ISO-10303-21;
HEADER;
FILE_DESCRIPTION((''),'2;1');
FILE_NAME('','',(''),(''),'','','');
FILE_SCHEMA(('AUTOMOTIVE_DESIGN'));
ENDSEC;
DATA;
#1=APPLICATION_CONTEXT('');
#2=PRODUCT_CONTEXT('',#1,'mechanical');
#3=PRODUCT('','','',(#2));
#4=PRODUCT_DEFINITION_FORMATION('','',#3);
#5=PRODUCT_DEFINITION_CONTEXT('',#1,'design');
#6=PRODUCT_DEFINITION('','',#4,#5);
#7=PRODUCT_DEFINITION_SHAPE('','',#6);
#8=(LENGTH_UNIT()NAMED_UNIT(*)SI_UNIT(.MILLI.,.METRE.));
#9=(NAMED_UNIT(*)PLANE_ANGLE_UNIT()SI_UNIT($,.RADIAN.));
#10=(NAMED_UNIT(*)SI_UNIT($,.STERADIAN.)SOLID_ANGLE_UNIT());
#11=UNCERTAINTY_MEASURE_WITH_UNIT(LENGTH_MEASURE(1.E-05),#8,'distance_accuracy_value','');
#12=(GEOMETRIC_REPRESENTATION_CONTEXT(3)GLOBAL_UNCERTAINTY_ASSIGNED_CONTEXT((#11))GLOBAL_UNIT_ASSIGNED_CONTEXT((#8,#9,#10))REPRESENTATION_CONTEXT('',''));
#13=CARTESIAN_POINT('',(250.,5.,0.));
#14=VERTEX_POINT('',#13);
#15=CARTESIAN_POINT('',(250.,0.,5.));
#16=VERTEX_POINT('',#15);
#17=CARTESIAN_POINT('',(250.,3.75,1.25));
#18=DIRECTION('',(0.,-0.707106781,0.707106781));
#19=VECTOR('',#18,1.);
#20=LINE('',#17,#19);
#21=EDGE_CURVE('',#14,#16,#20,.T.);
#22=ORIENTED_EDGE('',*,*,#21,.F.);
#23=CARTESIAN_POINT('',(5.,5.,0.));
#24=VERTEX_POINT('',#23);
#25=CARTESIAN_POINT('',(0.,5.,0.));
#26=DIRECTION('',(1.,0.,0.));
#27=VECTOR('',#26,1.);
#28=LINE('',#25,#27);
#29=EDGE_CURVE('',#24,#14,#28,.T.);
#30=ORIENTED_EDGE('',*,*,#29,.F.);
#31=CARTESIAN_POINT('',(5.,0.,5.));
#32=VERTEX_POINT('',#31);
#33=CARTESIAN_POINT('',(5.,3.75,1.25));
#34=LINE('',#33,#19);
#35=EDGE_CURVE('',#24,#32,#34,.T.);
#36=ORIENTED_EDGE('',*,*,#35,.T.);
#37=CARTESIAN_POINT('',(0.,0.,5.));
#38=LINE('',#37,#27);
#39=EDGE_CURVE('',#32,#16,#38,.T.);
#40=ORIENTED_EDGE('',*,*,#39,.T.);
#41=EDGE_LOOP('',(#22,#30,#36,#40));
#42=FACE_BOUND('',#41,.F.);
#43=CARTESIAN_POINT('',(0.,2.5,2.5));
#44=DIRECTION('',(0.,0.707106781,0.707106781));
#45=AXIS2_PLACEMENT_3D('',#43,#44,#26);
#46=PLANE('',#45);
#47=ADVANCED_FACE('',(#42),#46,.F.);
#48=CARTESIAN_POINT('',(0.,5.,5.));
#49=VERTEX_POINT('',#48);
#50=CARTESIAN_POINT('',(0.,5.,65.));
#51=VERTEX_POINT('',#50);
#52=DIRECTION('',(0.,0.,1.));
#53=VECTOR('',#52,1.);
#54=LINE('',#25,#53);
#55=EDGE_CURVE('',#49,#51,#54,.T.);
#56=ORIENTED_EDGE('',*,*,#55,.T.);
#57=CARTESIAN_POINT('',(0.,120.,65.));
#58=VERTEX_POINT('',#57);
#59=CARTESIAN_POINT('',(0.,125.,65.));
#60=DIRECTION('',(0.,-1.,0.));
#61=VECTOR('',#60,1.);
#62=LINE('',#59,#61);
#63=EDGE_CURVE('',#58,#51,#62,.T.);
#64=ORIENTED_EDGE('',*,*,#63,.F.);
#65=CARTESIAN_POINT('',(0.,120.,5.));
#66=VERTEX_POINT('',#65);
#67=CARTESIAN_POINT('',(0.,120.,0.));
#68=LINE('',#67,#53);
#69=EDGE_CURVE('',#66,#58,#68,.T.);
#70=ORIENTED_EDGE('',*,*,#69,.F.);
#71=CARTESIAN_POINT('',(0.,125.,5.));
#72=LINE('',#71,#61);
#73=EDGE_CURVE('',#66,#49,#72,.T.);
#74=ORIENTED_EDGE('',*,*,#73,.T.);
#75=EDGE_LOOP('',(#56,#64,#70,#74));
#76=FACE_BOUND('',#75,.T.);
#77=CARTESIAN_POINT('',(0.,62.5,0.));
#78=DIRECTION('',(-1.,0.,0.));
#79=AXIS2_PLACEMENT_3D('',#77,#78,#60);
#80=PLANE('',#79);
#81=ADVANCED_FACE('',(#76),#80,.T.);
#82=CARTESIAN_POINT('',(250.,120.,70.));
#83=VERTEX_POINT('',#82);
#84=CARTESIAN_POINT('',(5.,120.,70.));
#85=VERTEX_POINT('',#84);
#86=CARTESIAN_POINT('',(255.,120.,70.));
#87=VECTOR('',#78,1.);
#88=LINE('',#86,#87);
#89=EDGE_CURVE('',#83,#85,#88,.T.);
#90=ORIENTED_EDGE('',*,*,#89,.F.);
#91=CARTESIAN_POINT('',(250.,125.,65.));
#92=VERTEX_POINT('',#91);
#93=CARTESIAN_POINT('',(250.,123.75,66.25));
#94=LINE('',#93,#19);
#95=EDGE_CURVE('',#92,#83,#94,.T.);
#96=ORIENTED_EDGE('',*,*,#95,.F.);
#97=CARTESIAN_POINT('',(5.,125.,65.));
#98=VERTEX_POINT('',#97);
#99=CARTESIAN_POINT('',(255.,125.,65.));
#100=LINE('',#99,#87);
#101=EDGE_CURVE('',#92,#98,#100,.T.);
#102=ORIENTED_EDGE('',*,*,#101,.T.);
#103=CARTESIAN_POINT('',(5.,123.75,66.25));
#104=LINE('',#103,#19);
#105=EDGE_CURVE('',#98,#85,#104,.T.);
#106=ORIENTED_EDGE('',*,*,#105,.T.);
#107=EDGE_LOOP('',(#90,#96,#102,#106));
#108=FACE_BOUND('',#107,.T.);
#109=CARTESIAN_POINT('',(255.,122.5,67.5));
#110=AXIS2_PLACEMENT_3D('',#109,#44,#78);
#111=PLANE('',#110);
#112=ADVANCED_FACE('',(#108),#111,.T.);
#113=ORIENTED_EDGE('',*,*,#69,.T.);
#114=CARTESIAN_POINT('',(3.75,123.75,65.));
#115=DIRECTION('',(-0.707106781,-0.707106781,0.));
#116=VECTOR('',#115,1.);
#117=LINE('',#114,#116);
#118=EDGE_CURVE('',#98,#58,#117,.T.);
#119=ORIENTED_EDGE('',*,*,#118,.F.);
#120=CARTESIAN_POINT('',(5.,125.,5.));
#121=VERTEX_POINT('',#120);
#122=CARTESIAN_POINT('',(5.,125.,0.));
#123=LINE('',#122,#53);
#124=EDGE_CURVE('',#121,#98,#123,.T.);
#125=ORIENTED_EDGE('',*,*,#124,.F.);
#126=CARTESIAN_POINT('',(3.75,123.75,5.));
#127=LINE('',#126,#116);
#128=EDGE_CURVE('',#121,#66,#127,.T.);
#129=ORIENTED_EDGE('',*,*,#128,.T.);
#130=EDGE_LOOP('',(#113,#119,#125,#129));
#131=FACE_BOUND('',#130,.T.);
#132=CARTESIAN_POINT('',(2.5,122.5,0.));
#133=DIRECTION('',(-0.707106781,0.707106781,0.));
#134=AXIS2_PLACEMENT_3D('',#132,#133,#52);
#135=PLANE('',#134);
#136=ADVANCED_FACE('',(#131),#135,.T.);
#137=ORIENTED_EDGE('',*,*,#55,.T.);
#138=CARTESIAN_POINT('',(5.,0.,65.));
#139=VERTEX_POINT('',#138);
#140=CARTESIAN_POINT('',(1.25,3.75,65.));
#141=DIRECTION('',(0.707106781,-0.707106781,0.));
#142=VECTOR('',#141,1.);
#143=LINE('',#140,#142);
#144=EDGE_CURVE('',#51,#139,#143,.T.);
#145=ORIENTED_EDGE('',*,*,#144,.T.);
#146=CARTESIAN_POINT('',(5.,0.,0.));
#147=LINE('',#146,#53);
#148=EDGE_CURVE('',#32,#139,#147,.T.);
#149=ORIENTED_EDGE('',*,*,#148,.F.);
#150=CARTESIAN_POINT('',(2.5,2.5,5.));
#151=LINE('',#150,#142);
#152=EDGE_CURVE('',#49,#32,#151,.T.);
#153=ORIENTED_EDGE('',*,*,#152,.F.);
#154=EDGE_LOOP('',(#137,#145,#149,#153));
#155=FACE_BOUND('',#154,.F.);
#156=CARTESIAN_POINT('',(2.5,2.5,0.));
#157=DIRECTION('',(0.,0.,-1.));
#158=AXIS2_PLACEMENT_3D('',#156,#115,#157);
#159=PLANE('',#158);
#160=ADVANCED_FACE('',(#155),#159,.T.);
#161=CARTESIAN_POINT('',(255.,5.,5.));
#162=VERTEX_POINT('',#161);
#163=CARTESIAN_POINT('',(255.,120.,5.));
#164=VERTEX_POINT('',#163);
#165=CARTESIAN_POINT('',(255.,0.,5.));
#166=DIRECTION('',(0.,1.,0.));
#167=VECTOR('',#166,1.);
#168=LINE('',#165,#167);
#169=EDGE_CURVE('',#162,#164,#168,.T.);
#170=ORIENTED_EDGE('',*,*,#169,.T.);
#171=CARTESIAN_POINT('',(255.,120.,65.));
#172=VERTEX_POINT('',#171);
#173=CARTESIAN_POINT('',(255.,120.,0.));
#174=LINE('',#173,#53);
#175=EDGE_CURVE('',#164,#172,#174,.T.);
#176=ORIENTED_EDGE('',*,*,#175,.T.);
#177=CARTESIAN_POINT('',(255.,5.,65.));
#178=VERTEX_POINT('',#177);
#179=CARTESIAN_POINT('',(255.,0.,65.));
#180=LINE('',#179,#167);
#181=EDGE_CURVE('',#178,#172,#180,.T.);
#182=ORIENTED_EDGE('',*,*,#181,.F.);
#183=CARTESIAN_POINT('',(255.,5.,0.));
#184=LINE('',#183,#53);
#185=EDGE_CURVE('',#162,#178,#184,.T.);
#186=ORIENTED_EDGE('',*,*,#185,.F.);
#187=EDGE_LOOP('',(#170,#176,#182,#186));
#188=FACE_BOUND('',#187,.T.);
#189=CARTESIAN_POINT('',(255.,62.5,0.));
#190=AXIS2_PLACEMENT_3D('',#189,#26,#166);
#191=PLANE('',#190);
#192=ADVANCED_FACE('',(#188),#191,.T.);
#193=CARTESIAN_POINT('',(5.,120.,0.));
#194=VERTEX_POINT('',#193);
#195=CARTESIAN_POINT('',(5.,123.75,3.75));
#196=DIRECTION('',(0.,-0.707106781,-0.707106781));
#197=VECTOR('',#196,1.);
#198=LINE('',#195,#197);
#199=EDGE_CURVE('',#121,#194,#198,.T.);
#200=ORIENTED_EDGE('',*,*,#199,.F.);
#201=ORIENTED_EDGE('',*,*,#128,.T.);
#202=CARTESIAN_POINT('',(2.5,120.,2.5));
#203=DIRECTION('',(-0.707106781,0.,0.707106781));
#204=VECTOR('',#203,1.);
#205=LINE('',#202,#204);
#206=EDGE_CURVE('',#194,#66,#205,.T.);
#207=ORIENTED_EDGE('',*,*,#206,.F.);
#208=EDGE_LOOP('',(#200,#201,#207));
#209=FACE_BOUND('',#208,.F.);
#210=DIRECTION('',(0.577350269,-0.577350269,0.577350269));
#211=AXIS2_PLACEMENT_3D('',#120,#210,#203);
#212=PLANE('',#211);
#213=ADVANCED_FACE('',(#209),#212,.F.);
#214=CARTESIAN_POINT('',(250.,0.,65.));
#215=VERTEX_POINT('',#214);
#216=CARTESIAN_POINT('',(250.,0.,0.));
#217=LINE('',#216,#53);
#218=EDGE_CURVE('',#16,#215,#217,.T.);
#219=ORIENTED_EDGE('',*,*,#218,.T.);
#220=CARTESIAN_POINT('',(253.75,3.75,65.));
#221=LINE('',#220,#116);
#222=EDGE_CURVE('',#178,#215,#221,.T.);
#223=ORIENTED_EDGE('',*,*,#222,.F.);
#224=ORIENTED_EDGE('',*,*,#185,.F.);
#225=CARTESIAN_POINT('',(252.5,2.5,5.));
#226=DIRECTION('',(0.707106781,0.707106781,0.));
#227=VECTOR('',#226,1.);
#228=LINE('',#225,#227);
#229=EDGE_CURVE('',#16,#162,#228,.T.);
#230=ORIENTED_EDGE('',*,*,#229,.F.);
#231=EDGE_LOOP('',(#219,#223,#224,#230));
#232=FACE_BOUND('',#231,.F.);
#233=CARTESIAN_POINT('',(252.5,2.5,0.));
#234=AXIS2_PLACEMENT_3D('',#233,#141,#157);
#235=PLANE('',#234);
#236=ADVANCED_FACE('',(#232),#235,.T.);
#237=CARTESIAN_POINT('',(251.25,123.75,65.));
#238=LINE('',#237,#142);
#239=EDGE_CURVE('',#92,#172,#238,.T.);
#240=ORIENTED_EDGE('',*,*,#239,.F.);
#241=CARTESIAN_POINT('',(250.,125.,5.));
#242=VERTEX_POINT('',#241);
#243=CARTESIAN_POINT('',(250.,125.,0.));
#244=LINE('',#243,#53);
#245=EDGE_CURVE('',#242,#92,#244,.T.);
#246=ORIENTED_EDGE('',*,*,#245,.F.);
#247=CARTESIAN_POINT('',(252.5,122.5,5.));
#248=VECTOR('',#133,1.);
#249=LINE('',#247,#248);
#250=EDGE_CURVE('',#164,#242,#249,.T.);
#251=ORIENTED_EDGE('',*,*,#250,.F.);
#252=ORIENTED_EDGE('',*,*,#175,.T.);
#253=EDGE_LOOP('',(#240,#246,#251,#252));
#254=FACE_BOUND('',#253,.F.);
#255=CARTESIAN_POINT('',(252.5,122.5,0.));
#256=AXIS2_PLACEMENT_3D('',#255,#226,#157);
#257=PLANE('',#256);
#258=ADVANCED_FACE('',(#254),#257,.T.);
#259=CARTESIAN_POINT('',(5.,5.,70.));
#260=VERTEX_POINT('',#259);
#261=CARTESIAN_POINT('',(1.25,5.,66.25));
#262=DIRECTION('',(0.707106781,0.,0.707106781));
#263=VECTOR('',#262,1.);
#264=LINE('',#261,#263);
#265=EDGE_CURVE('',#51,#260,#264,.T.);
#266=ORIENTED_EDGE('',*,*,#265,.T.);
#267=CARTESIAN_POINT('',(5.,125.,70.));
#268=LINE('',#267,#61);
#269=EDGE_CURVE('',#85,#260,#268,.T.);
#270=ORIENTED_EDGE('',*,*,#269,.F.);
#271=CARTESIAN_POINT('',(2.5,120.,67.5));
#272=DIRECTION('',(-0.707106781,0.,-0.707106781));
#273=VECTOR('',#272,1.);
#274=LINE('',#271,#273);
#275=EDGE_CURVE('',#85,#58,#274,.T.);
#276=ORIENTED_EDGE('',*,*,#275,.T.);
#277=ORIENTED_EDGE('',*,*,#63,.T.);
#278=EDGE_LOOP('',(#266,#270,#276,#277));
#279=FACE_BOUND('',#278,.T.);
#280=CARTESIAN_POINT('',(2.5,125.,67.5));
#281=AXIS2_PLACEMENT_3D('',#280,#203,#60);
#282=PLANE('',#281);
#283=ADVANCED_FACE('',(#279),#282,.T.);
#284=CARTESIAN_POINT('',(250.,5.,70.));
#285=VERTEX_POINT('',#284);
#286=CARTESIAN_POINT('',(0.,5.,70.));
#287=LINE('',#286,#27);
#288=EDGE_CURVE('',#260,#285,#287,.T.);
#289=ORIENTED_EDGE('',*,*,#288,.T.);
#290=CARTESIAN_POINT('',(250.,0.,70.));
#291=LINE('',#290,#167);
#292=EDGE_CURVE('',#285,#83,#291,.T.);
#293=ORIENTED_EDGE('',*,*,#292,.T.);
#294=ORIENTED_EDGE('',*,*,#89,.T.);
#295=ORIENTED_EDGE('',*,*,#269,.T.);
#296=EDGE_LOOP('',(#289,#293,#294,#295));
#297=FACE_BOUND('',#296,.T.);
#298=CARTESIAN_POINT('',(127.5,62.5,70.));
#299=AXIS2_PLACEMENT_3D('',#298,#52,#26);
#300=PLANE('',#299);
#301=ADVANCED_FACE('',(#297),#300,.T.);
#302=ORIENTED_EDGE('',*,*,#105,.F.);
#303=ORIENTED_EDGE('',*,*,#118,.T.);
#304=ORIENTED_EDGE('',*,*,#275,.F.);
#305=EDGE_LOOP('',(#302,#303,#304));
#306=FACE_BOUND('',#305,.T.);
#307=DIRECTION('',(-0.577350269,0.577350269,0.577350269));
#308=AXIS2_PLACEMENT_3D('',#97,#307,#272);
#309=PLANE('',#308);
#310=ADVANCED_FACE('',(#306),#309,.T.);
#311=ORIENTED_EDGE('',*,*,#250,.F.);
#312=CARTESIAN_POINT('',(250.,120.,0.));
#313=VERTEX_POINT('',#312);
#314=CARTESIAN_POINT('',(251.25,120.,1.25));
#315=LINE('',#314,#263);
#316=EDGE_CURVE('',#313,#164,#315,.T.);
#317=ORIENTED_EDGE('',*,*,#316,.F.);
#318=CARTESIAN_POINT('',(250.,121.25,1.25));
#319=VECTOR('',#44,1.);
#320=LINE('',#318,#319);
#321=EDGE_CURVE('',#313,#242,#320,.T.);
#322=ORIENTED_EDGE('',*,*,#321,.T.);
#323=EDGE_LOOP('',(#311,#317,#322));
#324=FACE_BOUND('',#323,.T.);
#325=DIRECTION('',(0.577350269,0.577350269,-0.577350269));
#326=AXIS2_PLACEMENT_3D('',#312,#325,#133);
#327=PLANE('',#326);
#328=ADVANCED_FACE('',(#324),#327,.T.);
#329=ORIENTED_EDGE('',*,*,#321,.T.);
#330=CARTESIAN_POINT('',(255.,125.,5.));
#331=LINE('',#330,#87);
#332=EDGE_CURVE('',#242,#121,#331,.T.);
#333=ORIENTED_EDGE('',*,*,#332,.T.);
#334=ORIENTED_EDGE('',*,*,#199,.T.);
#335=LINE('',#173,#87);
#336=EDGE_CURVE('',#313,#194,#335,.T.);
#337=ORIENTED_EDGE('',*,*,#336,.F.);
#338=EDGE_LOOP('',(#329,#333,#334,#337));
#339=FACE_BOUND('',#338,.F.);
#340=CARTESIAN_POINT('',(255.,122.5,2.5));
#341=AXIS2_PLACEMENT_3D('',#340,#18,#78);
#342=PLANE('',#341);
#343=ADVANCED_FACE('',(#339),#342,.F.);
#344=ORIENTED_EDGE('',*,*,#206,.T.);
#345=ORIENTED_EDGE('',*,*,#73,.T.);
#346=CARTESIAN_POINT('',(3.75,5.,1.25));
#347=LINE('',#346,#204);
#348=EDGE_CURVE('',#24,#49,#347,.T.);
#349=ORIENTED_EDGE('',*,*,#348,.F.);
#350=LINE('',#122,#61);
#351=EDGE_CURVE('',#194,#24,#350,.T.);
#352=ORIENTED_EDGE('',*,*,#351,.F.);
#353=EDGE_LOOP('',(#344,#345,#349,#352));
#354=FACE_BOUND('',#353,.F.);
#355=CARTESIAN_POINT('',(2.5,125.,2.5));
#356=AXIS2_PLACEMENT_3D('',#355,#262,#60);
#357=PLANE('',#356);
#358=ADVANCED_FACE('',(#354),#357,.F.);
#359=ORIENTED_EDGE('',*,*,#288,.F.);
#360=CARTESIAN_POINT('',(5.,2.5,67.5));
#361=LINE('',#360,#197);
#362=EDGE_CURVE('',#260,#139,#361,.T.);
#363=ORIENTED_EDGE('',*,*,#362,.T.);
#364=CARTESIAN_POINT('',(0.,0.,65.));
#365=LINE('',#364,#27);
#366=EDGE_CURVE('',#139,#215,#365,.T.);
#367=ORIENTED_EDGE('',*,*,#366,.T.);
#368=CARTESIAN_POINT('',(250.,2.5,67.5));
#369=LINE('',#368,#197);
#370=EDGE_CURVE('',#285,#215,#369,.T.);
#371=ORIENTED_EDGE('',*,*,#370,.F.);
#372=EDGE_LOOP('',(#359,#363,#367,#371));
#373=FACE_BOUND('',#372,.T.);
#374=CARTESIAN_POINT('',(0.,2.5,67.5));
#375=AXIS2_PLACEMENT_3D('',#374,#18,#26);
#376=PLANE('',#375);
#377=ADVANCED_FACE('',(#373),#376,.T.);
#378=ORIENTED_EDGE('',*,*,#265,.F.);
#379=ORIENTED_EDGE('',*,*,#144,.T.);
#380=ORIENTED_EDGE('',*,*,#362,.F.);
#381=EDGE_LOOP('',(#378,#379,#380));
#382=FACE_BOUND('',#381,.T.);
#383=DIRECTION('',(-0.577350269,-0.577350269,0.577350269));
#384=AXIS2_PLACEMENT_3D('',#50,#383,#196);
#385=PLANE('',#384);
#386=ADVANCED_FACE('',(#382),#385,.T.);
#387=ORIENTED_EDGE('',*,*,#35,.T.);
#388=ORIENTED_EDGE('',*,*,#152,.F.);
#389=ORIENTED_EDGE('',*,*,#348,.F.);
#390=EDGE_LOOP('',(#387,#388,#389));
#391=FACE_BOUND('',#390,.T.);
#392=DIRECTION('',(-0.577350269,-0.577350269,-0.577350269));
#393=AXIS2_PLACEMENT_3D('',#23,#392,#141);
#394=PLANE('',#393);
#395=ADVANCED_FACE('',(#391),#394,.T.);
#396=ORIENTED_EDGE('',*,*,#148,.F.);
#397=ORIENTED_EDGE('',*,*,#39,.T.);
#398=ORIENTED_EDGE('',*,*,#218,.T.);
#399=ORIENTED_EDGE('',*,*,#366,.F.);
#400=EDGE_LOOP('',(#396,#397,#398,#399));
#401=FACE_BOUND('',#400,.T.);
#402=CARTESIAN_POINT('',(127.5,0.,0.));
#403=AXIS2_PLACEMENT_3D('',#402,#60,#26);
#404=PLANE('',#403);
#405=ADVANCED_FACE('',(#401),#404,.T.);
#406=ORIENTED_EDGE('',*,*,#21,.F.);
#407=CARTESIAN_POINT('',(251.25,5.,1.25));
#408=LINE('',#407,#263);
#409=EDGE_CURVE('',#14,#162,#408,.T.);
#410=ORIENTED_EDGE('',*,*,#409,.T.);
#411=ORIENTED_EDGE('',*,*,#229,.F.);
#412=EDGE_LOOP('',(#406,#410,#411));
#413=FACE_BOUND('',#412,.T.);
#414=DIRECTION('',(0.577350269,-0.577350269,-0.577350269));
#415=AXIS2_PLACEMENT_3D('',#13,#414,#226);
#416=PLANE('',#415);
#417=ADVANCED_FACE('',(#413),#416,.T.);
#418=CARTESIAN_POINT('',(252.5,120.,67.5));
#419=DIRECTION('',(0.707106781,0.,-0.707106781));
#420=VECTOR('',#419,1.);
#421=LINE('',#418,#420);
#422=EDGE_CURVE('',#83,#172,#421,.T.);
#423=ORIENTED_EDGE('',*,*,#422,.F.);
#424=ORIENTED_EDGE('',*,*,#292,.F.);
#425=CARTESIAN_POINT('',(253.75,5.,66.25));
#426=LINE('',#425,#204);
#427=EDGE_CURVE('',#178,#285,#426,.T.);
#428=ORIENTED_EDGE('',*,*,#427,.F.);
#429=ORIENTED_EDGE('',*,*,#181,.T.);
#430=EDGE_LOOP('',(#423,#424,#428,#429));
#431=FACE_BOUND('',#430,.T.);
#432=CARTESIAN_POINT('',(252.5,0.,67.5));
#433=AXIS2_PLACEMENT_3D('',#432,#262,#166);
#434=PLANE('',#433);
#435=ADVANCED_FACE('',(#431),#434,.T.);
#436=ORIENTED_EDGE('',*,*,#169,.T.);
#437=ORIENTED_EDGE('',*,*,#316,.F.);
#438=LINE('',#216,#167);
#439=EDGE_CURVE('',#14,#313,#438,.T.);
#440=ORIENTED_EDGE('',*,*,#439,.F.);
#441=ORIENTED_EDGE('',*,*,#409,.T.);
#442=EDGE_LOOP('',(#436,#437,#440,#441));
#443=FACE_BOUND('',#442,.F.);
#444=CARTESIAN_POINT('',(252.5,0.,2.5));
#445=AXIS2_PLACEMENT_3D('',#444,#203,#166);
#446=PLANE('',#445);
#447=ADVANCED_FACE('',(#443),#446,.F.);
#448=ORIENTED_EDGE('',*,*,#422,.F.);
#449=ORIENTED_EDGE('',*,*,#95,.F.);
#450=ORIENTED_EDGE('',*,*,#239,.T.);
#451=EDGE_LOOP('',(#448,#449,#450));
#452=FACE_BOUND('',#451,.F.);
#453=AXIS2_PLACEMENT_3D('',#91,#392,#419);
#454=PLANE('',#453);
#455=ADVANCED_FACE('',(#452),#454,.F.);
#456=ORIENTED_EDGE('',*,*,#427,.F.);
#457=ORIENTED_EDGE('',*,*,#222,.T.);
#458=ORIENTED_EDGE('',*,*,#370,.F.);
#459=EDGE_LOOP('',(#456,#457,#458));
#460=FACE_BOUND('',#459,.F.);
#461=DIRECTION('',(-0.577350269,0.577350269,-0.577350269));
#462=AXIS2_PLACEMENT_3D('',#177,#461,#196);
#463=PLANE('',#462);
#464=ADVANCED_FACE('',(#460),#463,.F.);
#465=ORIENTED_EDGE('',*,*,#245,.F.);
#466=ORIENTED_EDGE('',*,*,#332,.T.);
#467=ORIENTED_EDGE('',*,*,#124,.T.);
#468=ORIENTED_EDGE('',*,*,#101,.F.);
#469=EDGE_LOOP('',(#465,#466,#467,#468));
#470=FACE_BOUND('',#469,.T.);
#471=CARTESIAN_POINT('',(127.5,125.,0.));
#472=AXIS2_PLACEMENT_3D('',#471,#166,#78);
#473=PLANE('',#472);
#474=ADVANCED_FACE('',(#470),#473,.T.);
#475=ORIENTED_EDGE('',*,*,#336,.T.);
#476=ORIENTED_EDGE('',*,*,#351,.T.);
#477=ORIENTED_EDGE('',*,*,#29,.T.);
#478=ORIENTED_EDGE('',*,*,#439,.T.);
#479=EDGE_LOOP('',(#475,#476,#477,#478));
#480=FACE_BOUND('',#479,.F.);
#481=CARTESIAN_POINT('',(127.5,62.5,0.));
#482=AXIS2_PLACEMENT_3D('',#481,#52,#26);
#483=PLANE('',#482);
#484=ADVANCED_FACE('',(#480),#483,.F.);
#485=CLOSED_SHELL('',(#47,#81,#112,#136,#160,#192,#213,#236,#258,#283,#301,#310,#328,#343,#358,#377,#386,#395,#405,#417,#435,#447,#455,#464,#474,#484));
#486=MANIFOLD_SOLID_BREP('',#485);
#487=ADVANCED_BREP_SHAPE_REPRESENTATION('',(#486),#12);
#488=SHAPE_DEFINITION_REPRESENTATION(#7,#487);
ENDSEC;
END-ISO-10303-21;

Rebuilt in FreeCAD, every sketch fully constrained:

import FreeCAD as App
import Part
import Sketcher

V = App.Vector

doc = App.newDocument("Part")
body = doc.addObject("PartDesign::Body", "Body")

# Sketch on XY plane
sketch1 = body.newObject("Sketcher::SketchObject", "Sketch")
sketch1.AttachmentSupport = (doc.getObject("XY_Plane"), [""])
sketch1.MapMode = "FlatFace"
sketch1.addGeometry([
    Part.LineSegment(V(0, 125, 0), V(0, 0, 0)),
    Part.LineSegment(V(0, 0, 0), V(255, 0, 0)),
    Part.LineSegment(V(255, 0, 0), V(255, 125, 0)),
    Part.LineSegment(V(255, 125, 0), V(0, 125, 0)),
], False)
sketch1.addConstraint([
    Sketcher.Constraint("Coincident", 0, 2, 1, 1),
    Sketcher.Constraint("Coincident", 1, 2, 2, 1),
    Sketcher.Constraint("Coincident", 2, 2, 3, 1),
    Sketcher.Constraint("Coincident", 3, 2, 0, 1),
    Sketcher.Constraint("Vertical", 0),
    Sketcher.Constraint("Horizontal", 1),
    Sketcher.Constraint("Vertical", 2),
    Sketcher.Constraint("Horizontal", 3),
    Sketcher.Constraint("Coincident", 0, 2, -1, 1),
    Sketcher.Constraint("DistanceX", 1, 1, 1, 2, 255.0),
    Sketcher.Constraint("DistanceY", 0, 2, 0, 1, 125.0),
])

# Sketch on XZ plane
sketch2 = body.newObject("Sketcher::SketchObject", "Sketch001")
sketch2.AttachmentSupport = (doc.getObject("XZ_Plane"), [""])
sketch2.MapMode = "FlatFace"
sketch2.addGeometry(Part.LineSegment(V(0, 0, 0), V(0, 70, 0)), False)
sketch2.addConstraint([
    Sketcher.Constraint("Vertical", 0),
    Sketcher.Constraint("Coincident", 0, 1, -1, 1),
    Sketcher.Constraint("DistanceY", 0, 1, 0, 2, 70.0),
])
doc.recompute()

additivepipe = body.newObject("PartDesign::AdditivePipe", "AdditivePipe")
additivepipe.Profile = sketch1
additivepipe.Spine = (sketch2, ["Edge1"])
doc.recompute()

chamfer = body.newObject("PartDesign::Chamfer", "Chamfer")
chamfer.Base = (additivepipe, ["Edge1"])
chamfer.UseAllEdges = True
chamfer.Size = 5

doc.recompute()
